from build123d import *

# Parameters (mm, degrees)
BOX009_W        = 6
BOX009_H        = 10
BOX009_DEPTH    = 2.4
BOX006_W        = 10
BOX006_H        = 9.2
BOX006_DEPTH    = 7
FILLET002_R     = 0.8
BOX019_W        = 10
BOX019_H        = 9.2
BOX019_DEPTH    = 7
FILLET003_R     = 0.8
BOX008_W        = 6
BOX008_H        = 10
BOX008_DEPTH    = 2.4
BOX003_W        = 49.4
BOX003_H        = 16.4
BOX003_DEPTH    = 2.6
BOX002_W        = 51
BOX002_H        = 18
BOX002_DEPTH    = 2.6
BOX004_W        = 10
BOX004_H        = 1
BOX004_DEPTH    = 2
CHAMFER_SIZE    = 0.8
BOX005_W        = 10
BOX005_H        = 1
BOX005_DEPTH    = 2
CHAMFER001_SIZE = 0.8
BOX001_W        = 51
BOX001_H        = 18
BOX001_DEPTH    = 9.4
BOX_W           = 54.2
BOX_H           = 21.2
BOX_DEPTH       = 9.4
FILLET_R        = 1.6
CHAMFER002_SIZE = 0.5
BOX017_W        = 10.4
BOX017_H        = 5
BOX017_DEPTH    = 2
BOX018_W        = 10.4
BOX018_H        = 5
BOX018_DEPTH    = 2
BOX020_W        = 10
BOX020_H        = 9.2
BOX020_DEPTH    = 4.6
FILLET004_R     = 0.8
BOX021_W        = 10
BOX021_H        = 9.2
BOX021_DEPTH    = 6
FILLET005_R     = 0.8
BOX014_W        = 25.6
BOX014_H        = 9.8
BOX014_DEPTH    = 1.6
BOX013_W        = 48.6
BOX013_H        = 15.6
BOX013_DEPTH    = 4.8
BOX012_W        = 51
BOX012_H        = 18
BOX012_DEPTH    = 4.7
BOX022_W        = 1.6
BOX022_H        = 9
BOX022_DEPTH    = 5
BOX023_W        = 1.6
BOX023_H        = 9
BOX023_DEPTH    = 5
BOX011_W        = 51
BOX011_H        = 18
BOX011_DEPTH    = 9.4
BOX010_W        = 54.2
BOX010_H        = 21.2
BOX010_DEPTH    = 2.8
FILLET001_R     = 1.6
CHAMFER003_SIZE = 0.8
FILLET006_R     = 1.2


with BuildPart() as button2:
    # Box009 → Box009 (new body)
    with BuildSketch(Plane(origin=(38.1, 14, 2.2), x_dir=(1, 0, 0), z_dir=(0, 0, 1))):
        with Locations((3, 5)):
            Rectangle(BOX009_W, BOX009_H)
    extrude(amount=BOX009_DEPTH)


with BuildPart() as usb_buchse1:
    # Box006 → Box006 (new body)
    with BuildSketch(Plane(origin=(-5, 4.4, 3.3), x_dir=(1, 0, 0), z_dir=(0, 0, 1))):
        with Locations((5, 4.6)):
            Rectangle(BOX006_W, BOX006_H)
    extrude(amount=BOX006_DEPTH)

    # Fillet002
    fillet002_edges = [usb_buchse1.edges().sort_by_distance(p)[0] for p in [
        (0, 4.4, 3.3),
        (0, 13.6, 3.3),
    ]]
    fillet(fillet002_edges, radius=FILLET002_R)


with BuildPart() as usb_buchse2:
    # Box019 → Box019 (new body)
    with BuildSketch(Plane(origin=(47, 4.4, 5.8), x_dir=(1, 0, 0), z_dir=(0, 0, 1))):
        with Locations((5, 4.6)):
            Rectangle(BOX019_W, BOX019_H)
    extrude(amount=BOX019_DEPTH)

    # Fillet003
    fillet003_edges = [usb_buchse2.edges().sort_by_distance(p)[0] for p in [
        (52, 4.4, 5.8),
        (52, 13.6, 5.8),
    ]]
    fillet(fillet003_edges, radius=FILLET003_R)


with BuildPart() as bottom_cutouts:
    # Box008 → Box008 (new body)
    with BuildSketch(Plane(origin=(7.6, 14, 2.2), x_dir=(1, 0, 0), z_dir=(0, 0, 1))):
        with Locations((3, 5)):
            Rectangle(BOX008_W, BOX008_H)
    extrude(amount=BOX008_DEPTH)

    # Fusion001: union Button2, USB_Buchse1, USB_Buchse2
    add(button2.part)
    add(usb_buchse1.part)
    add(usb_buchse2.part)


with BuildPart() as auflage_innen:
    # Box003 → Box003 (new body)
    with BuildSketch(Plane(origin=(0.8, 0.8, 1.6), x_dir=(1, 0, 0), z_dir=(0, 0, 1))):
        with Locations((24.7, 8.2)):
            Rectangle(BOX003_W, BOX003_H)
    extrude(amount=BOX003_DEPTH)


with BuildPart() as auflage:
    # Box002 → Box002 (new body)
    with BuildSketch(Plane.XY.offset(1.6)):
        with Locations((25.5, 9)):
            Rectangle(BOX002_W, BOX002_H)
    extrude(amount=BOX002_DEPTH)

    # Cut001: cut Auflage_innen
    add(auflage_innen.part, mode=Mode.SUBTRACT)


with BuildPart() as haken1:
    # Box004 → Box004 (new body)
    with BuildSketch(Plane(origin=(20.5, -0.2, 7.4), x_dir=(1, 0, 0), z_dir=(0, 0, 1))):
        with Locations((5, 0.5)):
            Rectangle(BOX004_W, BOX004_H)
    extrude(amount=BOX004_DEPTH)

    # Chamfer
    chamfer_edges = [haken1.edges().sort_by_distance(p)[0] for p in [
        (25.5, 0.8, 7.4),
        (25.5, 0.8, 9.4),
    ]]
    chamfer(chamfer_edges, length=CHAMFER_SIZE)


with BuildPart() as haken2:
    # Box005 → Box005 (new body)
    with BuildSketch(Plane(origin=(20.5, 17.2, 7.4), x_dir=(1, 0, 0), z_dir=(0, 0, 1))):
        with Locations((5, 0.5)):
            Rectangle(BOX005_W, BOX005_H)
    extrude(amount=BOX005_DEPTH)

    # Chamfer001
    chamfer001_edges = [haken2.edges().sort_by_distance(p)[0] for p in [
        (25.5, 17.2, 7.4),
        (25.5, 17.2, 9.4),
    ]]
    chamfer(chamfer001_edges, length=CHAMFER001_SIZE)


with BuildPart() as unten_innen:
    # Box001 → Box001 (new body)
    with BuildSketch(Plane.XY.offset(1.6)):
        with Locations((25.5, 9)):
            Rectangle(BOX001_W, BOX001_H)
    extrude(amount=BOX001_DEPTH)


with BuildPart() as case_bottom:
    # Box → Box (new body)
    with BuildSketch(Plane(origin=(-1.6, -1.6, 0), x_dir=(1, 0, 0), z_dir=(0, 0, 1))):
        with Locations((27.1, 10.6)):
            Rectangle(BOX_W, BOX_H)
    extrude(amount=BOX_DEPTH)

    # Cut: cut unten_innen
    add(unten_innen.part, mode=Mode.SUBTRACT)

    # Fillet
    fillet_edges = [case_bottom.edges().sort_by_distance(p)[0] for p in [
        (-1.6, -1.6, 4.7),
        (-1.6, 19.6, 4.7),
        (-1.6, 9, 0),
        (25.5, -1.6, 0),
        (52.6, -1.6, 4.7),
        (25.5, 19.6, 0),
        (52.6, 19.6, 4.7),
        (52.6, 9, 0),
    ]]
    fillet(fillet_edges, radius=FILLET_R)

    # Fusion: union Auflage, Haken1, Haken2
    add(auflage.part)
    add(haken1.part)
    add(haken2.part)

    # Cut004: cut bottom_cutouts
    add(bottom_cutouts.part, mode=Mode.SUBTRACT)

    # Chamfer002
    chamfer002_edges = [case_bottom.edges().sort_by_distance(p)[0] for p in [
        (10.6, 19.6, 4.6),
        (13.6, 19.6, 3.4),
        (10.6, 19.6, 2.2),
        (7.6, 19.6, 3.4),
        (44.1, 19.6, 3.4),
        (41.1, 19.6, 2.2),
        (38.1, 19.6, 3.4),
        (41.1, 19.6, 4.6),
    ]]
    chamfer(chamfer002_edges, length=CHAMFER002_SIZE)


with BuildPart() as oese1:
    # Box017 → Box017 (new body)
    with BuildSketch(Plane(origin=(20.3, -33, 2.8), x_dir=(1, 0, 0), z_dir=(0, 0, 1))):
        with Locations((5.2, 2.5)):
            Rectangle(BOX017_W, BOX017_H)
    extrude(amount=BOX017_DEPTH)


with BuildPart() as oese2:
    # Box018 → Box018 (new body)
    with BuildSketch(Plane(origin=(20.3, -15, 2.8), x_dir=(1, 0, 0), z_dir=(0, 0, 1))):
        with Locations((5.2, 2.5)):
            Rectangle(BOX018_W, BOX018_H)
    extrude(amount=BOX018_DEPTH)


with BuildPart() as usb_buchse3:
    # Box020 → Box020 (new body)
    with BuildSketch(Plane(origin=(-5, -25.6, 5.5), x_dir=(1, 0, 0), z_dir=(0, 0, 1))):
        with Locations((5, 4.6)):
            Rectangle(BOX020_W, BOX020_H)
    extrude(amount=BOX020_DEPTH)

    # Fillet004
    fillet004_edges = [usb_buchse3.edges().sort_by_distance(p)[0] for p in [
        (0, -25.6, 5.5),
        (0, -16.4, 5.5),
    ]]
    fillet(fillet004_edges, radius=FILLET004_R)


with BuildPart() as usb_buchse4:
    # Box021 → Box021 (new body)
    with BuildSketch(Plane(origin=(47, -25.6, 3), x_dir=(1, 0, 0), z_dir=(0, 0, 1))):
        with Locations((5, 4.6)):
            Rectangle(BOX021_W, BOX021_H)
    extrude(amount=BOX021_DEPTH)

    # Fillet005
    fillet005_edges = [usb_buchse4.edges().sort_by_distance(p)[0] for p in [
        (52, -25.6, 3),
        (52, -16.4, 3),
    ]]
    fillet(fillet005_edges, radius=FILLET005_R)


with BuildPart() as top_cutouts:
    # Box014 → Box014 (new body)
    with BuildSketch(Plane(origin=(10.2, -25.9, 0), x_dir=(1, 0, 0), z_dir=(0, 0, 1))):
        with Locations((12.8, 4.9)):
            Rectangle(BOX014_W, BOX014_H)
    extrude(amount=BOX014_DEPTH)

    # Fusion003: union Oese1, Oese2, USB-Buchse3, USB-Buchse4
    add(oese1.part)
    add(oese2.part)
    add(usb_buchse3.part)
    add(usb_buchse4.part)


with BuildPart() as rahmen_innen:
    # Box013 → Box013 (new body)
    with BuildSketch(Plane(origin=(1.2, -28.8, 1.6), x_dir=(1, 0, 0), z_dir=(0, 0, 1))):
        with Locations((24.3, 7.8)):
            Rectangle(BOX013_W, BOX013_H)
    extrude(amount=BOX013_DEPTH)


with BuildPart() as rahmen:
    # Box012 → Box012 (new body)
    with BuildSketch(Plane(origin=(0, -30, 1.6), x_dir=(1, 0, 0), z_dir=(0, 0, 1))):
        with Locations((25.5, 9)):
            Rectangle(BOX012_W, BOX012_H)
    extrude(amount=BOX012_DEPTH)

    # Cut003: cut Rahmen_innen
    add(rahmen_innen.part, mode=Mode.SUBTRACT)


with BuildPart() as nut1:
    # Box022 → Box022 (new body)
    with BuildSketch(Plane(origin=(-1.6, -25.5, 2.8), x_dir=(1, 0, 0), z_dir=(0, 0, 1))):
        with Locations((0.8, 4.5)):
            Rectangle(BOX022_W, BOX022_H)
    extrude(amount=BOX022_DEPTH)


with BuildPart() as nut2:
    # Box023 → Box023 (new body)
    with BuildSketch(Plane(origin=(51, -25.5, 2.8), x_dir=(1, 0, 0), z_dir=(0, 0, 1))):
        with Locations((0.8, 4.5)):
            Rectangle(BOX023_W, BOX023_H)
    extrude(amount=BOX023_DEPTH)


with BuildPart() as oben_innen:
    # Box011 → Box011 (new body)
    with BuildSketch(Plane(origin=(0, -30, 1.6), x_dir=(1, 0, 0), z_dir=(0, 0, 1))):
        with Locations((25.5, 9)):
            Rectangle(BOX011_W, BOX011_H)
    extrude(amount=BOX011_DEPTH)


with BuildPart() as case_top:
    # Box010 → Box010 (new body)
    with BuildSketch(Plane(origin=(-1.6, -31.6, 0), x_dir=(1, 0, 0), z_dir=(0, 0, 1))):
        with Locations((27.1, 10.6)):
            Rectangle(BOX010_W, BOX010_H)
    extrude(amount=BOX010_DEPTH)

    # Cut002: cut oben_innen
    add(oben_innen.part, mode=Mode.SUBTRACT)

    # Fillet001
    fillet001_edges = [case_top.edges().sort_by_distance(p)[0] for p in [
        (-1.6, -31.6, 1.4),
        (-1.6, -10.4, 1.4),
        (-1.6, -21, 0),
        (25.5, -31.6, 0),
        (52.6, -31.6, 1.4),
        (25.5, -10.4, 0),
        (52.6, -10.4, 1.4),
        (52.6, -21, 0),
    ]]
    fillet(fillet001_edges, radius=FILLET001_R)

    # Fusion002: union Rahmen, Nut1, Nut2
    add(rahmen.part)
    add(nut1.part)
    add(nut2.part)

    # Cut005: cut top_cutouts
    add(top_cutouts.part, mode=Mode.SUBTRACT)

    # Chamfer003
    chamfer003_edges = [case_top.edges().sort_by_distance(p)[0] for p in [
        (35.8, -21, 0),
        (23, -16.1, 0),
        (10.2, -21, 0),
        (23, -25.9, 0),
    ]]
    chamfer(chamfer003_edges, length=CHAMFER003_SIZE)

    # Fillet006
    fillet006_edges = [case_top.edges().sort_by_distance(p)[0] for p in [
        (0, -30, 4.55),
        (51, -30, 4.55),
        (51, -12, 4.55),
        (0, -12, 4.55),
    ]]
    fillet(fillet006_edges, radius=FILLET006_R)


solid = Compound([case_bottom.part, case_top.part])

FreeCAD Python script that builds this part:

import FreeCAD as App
import Part
import Sketcher
from FreeCAD import Vector


def edges_at(feature, points):
    """Names of the edges that pass closest to the given points."""
    edges = feature.Shape.Edges
    near = lambda p: min(range(len(edges)), key=lambda i: edges[i].distToShape(Part.Vertex(*p))[0])
    return sorted({f"Edge{near(p) + 1}" for p in points})

doc = App.newDocument("Part")
body = doc.addObject("PartDesign::Body", "Body")

# Sketch on XY plane
sketch1 = body.newObject("Sketcher::SketchObject", "Sketch")
sketch1.AttachmentSupport = (doc.getObject("XY_Plane"), [""])
sketch1.MapMode = "FlatFace"
sketch1.AttachmentOffset = App.Placement(Vector(0, 0, 2.2), App.Rotation())
sketch1.addGeometry([
    Part.LineSegment(Vector(38.1, 24, 0), Vector(38.1, 14, 0)),
    Part.LineSegment(Vector(38.1, 14, 0), Vector(44.1, 14, 0)),
    Part.LineSegment(Vector(44.1, 14, 0), Vector(44.1, 24, 0)),
    Part.LineSegment(Vector(44.1, 24, 0), Vector(38.1, 24, 0)),
], False)
sketch1.addConstraint([
    Sketcher.Constraint("Coincident", 0, 2, 1, 1),
    Sketcher.Constraint("Coincident", 1, 2, 2, 1),
    Sketcher.Constraint("Coincident", 2, 2, 3, 1),
    Sketcher.Constraint("Coincident", 3, 2, 0, 1),
    Sketcher.Constraint("Vertical", 0),
    Sketcher.Constraint("Horizontal", 1),
    Sketcher.Constraint("Vertical", 2),
    Sketcher.Constraint("Horizontal", 3),
    Sketcher.Constraint("DistanceX", 1, 1, 1, 2, 6.0),
    Sketcher.Constraint("DistanceY", 0, 2, 0, 1, 10.0),
    Sketcher.Constraint("DistanceY", -1, 1, 0, 2, 14.0),
    Sketcher.Constraint("DistanceX", -1, 1, 0, 2, 38.1),
])
pad1 = body.newObject("PartDesign::Pad", "Pad")
pad1.Profile = sketch1
pad1.Length = 2.4
body2 = doc.addObject("PartDesign::Body", "Body001")

# Sketch on XY plane
sketch2 = body2.newObject("Sketcher::SketchObject", "Sketch001")
sketch2.AttachmentSupport = (doc.getObject("XY_Plane001"), [""])
sketch2.MapMode = "FlatFace"
sketch2.AttachmentOffset = App.Placement(Vector(0, 0, 3.3), App.Rotation())
sketch2.addGeometry([
    Part.LineSegment(Vector(-5, 13.6, 0), Vector(-5, 4.4, 0)),
    Part.LineSegment(Vector(-5, 4.4, 0), Vector(5, 4.4, 0)),
    Part.LineSegment(Vector(5, 4.4, 0), Vector(5, 13.6, 0)),
    Part.LineSegment(Vector(5, 13.6, 0), Vector(-5, 13.6, 0)),
], False)
sketch2.addConstraint([
    Sketcher.Constraint("Coincident", 0, 2, 1, 1),
    Sketcher.Constraint("Coincident", 1, 2, 2, 1),
    Sketcher.Constraint("Coincident", 2, 2, 3, 1),
    Sketcher.Constraint("Coincident", 3, 2, 0, 1),
    Sketcher.Constraint("Vertical", 0),
    Sketcher.Constraint("Horizontal", 1),
    Sketcher.Constraint("Vertical", 2),
    Sketcher.Constraint("Horizontal", 3),
    Sketcher.Constraint("DistanceX", 1, 1, 1, 2, 10.0),
    Sketcher.Constraint("DistanceY", 0, 2, 0, 1, 9.2),
    Sketcher.Constraint("DistanceX", 0, 2, -1, 1, 5.0),
    Sketcher.Constraint("DistanceY", -1, 1, 0, 2, 4.4),
])
pad2 = body2.newObject("PartDesign::Pad", "Pad001")
pad2.Profile = sketch2
pad2.Length = 7
doc.recompute()

fillet = body2.newObject("PartDesign::Fillet", "Fillet")
fillet.Base = (pad2, edges_at(pad2, [(0, 4.4, 3.3), (0, 13.6, 3.3)]))
fillet.Radius = 0.8
body3 = doc.addObject("PartDesign::Body", "Body002")

# Sketch on XY plane
sketch3 = body3.newObject("Sketcher::SketchObject", "Sketch002")
sketch3.AttachmentSupport = (doc.getObject("XY_Plane002"), [""])
sketch3.MapMode = "FlatFace"
sketch3.AttachmentOffset = App.Placement(Vector(0, 0, 5.8), App.Rotation())
sketch3.addGeometry([
    Part.LineSegment(Vector(47, 13.6, 0), Vector(47, 4.4, 0)),
    Part.LineSegment(Vector(47, 4.4, 0), Vector(57, 4.4, 0)),
    Part.LineSegment(Vector(57, 4.4, 0), Vector(57, 13.6, 0)),
    Part.LineSegment(Vector(57, 13.6, 0), Vector(47, 13.6, 0)),
], False)
sketch3.addConstraint([
    Sketcher.Constraint("Coincident", 0, 2, 1, 1),
    Sketcher.Constraint("Coincident", 1, 2, 2, 1),
    Sketcher.Constraint("Coincident", 2, 2, 3, 1),
    Sketcher.Constraint("Coincident", 3, 2, 0, 1),
    Sketcher.Constraint("Vertical", 0),
    Sketcher.Constraint("Horizontal", 1),
    Sketcher.Constraint("Vertical", 2),
    Sketcher.Constraint("Horizontal", 3),
    Sketcher.Constraint("DistanceX", 1, 1, 1, 2, 10.0),
    Sketcher.Constraint("DistanceY", 0, 2, 0, 1, 9.2),
    Sketcher.Constraint("DistanceX", -1, 1, 0, 2, 47.0),
    Sketcher.Constraint("DistanceY", -1, 1, 0, 2, 4.4),
])
pad3 = body3.newObject("PartDesign::Pad", "Pad002")
pad3.Profile = sketch3
pad3.Length = 7
doc.recompute()

fillet2 = body3.newObject("PartDesign::Fillet", "Fillet001")
fillet2.Base = (pad3, edges_at(pad3, [(52, 4.4, 5.8), (52, 13.6, 5.8)]))
fillet2.Radius = 0.8
body4 = doc.addObject("PartDesign::Body", "Body003")
body4.AllowCompound = True

# Sketch on XY plane
sketch4 = body4.newObject("Sketcher::SketchObject", "Sketch003")
sketch4.AttachmentSupport = (doc.getObject("XY_Plane003"), [""])
sketch4.MapMode = "FlatFace"
sketch4.AttachmentOffset = App.Placement(Vector(0, 0, 2.2), App.Rotation())
sketch4.addGeometry([
    Part.LineSegment(Vector(7.6, 24, 0), Vector(7.6, 14, 0)),
    Part.LineSegment(Vector(7.6, 14, 0), Vector(13.6, 14, 0)),
    Part.LineSegment(Vector(13.6, 14, 0), Vector(13.6, 24, 0)),
    Part.LineSegment(Vector(13.6, 24, 0), Vector(7.6, 24, 0)),
], False)
sketch4.addConstraint([
    Sketcher.Constraint("Coincident", 0, 2, 1, 1),
    Sketcher.Constraint("Coincident", 1, 2, 2, 1),
    Sketcher.Constraint("Coincident", 2, 2, 3, 1),
    Sketcher.Constraint("Coincident", 3, 2, 0, 1),
    Sketcher.Constraint("Vertical", 0),
    Sketcher.Constraint("Horizontal", 1),
    Sketcher.Constraint("Vertical", 2),
    Sketcher.Constraint("Horizontal", 3),
    Sketcher.Constraint("DistanceX", 1, 1, 1, 2, 6.0),
    Sketcher.Constraint("DistanceY", 0, 2, 0, 1, 10.0),
    Sketcher.Constraint("DistanceY", -1, 1, 0, 2, 14.0),
    Sketcher.Constraint("DistanceX", -1, 1, 0, 2, 7.6),
])
pad4 = body4.newObject("PartDesign::Pad", "Pad003")
pad4.Profile = sketch4
pad4.Length = 2.4
doc.recompute()

boolean = body4.newObject("PartDesign::Boolean", "Boolean")
boolean.Type = "Fuse"
boolean.addObjects([body])
doc.recompute()

boolean2 = body4.newObject("PartDesign::Boolean", "Boolean001")
boolean2.Type = "Fuse"
boolean2.addObjects([body2])
doc.recompute()

boolean3 = body4.newObject("PartDesign::Boolean", "Boolean002")
boolean3.Type = "Fuse"
boolean3.addObjects([body3])
body5 = doc.addObject("PartDesign::Body", "Body004")

# Sketch on XY plane
sketch5 = body5.newObject("Sketcher::SketchObject", "Sketch004")
sketch5.AttachmentSupport = (doc.getObject("XY_Plane004"), [""])
sketch5.MapMode = "FlatFace"
sketch5.AttachmentOffset = App.Placement(Vector(0, 0, 1.6), App.Rotation())
sketch5.addGeometry([
    Part.LineSegment(Vector(0.8, 17.2, 0), Vector(0.8, 0.8, 0)),
    Part.LineSegment(Vector(0.8, 0.8, 0), Vector(50.2, 0.8, 0)),
    Part.LineSegment(Vector(50.2, 0.8, 0), Vector(50.2, 17.2, 0)),
    Part.LineSegment(Vector(50.2, 17.2, 0), Vector(0.8, 17.2, 0)),
], False)
sketch5.addConstraint([
    Sketcher.Constraint("Coincident", 0, 2, 1, 1),
    Sketcher.Constraint("Coincident", 1, 2, 2, 1),
    Sketcher.Constraint("Coincident", 2, 2, 3, 1),
    Sketcher.Constraint("Coincident", 3, 2, 0, 1),
    Sketcher.Constraint("Vertical", 0),
    Sketcher.Constraint("Horizontal", 1),
    Sketcher.Constraint("Vertical", 2),
    Sketcher.Constraint("Horizontal", 3),
    Sketcher.Constraint("DistanceX", 1, 1, 1, 2, 49.4),
    Sketcher.Constraint("DistanceY", 0, 2, 0, 1, 16.4),
    Sketcher.Constraint("DistanceX", -1, 1, 0, 2, 0.8),
    Sketcher.Constraint("DistanceY", -1, 1, 0, 2, 0.8),
])
pad5 = body5.newObject("PartDesign::Pad", "Pad004")
pad5.Profile = sketch5
pad5.Length = 2.6
body6 = doc.addObject("PartDesign::Body", "Body005")

# Sketch on XY plane
sketch6 = body6.newObject("Sketcher::SketchObject", "Sketch005")
sketch6.AttachmentSupport = (doc.getObject("XY_Plane005"), [""])
sketch6.MapMode = "FlatFace"
sketch6.AttachmentOffset = App.Placement(Vector(0, 0, 1.6), App.Rotation())
sketch6.addGeometry([
    Part.LineSegment(Vector(0, 18, 0), Vector(0, 0, 0)),
    Part.LineSegment(Vector(0, 0, 0), Vector(51, 0, 0)),
    Part.LineSegment(Vector(51, 0, 0), Vector(51, 18, 0)),
    Part.LineSegment(Vector(51, 18, 0), Vector(0, 18, 0)),
], False)
sketch6.addConstraint([
    Sketcher.Constraint("Coincident", 0, 2, 1, 1),
    Sketcher.Constraint("Coincident", 1, 2, 2, 1),
    Sketcher.Constraint("Coincident", 2, 2, 3, 1),
    Sketcher.Constraint("Coincident", 3, 2, 0, 1),
    Sketcher.Constraint("Vertical", 0),
    Sketcher.Constraint("Horizontal", 1),
    Sketcher.Constraint("Vertical", 2),
    Sketcher.Constraint("Horizontal", 3),
    Sketcher.Constraint("Coincident", 0, 2, -1, 1),
    Sketcher.Constraint("DistanceX", 1, 1, 1, 2, 51.0),
    Sketcher.Constraint("DistanceY", 0, 2, 0, 1, 18.0),
])
pad6 = body6.newObject("PartDesign::Pad", "Pad005")
pad6.Profile = sketch6
pad6.Length = 2.6
doc.recompute()

boolean4 = body6.newObject("PartDesign::Boolean", "Boolean003")
boolean4.Type = "Cut"
boolean4.addObjects([body5])
body7 = doc.addObject("PartDesign::Body", "Body006")

# Sketch on XY plane
sketch7 = body7.newObject("Sketcher::SketchObject", "Sketch006")
sketch7.AttachmentSupport = (doc.getObject("XY_Plane006"), [""])
sketch7.MapMode = "FlatFace"
sketch7.AttachmentOffset = App.Placement(Vector(0, 0, 7.4), App.Rotation())
sketch7.addGeometry([
    Part.LineSegment(Vector(20.5, 0.8, 0), Vector(20.5, -0.2, 0)),
    Part.LineSegment(Vector(20.5, -0.2, 0), Vector(30.5, -0.2, 0)),
    Part.LineSegment(Vector(30.5, -0.2, 0), Vector(30.5, 0.8, 0)),
    Part.LineSegment(Vector(30.5, 0.8, 0), Vector(20.5, 0.8, 0)),
], False)
sketch7.addConstraint([
    Sketcher.Constraint("Coincident", 0, 2, 1, 1),
    Sketcher.Constraint("Coincident", 1, 2, 2, 1),
    Sketcher.Constraint("Coincident", 2, 2, 3, 1),
    Sketcher.Constraint("Coincident", 3, 2, 0, 1),
    Sketcher.Constraint("Vertical", 0),
    Sketcher.Constraint("Horizontal", 1),
    Sketcher.Constraint("Vertical", 2),
    Sketcher.Constraint("Horizontal", 3),
    Sketcher.Constraint("DistanceX", 1, 1, 1, 2, 10.0),
    Sketcher.Constraint("DistanceY", 0, 2, 0, 1, 1.0),
    Sketcher.Constraint("DistanceX", -1, 1, 0, 2, 20.5),
    Sketcher.Constraint("DistanceY", 0, 2, -1, 1, 0.2),
])
pad7 = body7.newObject("PartDesign::Pad", "Pad006")
pad7.Profile = sketch7
pad7.Length = 2
doc.recompute()

chamfer = body7.newObject("PartDesign::Chamfer", "Chamfer")
chamfer.Base = (pad7, edges_at(pad7, [(25.5, 0.8, 7.4), (25.5, 0.8, 9.4)]))
chamfer.Size = 0.8
body8 = doc.addObject("PartDesign::Body", "Body007")

# Sketch on XY plane
sketch8 = body8.newObject("Sketcher::SketchObject", "Sketch007")
sketch8.AttachmentSupport = (doc.getObject("XY_Plane007"), [""])
sketch8.MapMode = "FlatFace"
sketch8.AttachmentOffset = App.Placement(Vector(0, 0, 7.4), App.Rotation())
sketch8.addGeometry([
    Part.LineSegment(Vector(20.5, 18.2, 0), Vector(20.5, 17.2, 0)),
    Part.LineSegment(Vector(20.5, 17.2, 0), Vector(30.5, 17.2, 0)),
    Part.LineSegment(Vector(30.5, 17.2, 0), Vector(30.5, 18.2, 0)),
    Part.LineSegment(Vector(30.5, 18.2, 0), Vector(20.5, 18.2, 0)),
], False)
sketch8.addConstraint([
    Sketcher.Constraint("Coincident", 0, 2, 1, 1),
    Sketcher.Constraint("Coincident", 1, 2, 2, 1),
    Sketcher.Constraint("Coincident", 2, 2, 3, 1),
    Sketcher.Constraint("Coincident", 3, 2, 0, 1),
    Sketcher.Constraint("Vertical", 0),
    Sketcher.Constraint("Horizontal", 1),
    Sketcher.Constraint("Vertical", 2),
    Sketcher.Constraint("Horizontal", 3),
    Sketcher.Constraint("DistanceX", 1, 1, 1, 2, 10.0),
    Sketcher.Constraint("DistanceY", 0, 2, 0, 1, 1.0),
    Sketcher.Constraint("DistanceX", -1, 1, 0, 2, 20.5),
    Sketcher.Constraint("DistanceY", -1, 1, 0, 2, 17.2),
])
pad8 = body8.newObject("PartDesign::Pad", "Pad007")
pad8.Profile = sketch8
pad8.Length = 2
doc.recompute()

chamfer2 = body8.newObject("PartDesign::Chamfer", "Chamfer001")
chamfer2.Base = (pad8, edges_at(pad8, [(25.5, 17.2, 7.4), (25.5, 17.2, 9.4)]))
chamfer2.Size = 0.8
body9 = doc.addObject("PartDesign::Body", "Body008")

# Sketch on XY plane
sketch9 = body9.newObject("Sketcher::SketchObject", "Sketch008")
sketch9.AttachmentSupport = (doc.getObject("XY_Plane008"), [""])
sketch9.MapMode = "FlatFace"
sketch9.AttachmentOffset = App.Placement(Vector(0, 0, 1.6), App.Rotation())
sketch9.addGeometry([
    Part.LineSegment(Vector(0, 18, 0), Vector(0, 0, 0)),
    Part.LineSegment(Vector(0, 0, 0), Vector(51, 0, 0)),
    Part.LineSegment(Vector(51, 0, 0), Vector(51, 18, 0)),
    Part.LineSegment(Vector(51, 18, 0), Vector(0, 18, 0)),
], False)
sketch9.addConstraint([
    Sketcher.Constraint("Coincident", 0, 2, 1, 1),
    Sketcher.Constraint("Coincident", 1, 2, 2, 1),
    Sketcher.Constraint("Coincident", 2, 2, 3, 1),
    Sketcher.Constraint("Coincident", 3, 2, 0, 1),
    Sketcher.Constraint("Vertical", 0),
    Sketcher.Constraint("Horizontal", 1),
    Sketcher.Constraint("Vertical", 2),
    Sketcher.Constraint("Horizontal", 3),
    Sketcher.Constraint("Coincident", 0, 2, -1, 1),
    Sketcher.Constraint("DistanceX", 1, 1, 1, 2, 51.0),
    Sketcher.Constraint("DistanceY", 0, 2, 0, 1, 18.0),
])
pad9 = body9.newObject("PartDesign::Pad", "Pad008")
pad9.Profile = sketch9
pad9.Length = 9.4
body10 = doc.addObject("PartDesign::Body", "Body009")

# Sketch on XY plane
sketch10 = body10.newObject("Sketcher::SketchObject", "Sketch009")
sketch10.AttachmentSupport = (doc.getObject("XY_Plane009"), [""])
sketch10.MapMode = "FlatFace"
sketch10.addGeometry([
    Part.LineSegment(Vector(-1.6, 19.6, 0), Vector(-1.6, -1.6, 0)),
    Part.LineSegment(Vector(-1.6, -1.6, 0), Vector(52.6, -1.6, 0)),
    Part.LineSegment(Vector(52.6, -1.6, 0), Vector(52.6, 19.6, 0)),
    Part.LineSegment(Vector(52.6, 19.6, 0), Vector(-1.6, 19.6, 0)),
], False)
sketch10.addConstraint([
    Sketcher.Constraint("Coincident", 0, 2, 1, 1),
    Sketcher.Constraint("Coincident", 1, 2, 2, 1),
    Sketcher.Constraint("Coincident", 2, 2, 3, 1),
    Sketcher.Constraint("Coincident", 3, 2, 0, 1),
    Sketcher.Constraint("Vertical", 0),
    Sketcher.Constraint("Horizontal", 1),
    Sketcher.Constraint("Vertical", 2),
    Sketcher.Constraint("Horizontal", 3),
    Sketcher.Constraint("DistanceX", 1, 1, 1, 2, 54.2),
    Sketcher.Constraint("DistanceY", 0, 2, 0, 1, 21.2),
    Sketcher.Constraint("DistanceX", 0, 2, -1, 1, 1.6),
    Sketcher.Constraint("DistanceY", 0, 2, -1, 1, 1.6),
])
pad10 = body10.newObject("PartDesign::Pad", "Pad009")
pad10.Profile = sketch10
pad10.Length = 9.4
doc.recompute()

boolean5 = body10.newObject("PartDesign::Boolean", "Boolean004")
boolean5.Type = "Cut"
boolean5.addObjects([body9])
doc.recompute()

fillet3 = body10.newObject("PartDesign::Fillet", "Fillet002")
fillet3.Base = (boolean5, edges_at(boolean5, [
    (-1.6, -1.6, 4.7),
    (-1.6, 19.6, 4.7),
    (-1.6, 9, 0),
    (25.5, -1.6, 0),
    (52.6, -1.6, 4.7),
    (25.5, 19.6, 0),
    (52.6, 19.6, 4.7),
    (52.6, 9, 0),
]))
fillet3.Radius = 1.6
doc.recompute()

boolean6 = body10.newObject("PartDesign::Boolean", "Boolean005")
boolean6.Type = "Fuse"
boolean6.addObjects([body6])
doc.recompute()

boolean7 = body10.newObject("PartDesign::Boolean", "Boolean006")
boolean7.Type = "Fuse"
boolean7.addObjects([body7])
doc.recompute()

boolean8 = body10.newObject("PartDesign::Boolean", "Boolean007")
boolean8.Type = "Fuse"
boolean8.addObjects([body8])
doc.recompute()

boolean9 = body10.newObject("PartDesign::Boolean", "Boolean008")
boolean9.Type = "Cut"
boolean9.addObjects([body4])
doc.recompute()

chamfer3 = body10.newObject("PartDesign::Chamfer", "Chamfer002")
chamfer3.Base = (boolean9, edges_at(boolean9, [
    (10.6, 19.6, 4.6),
    (13.6, 19.6, 3.4),
    (10.6, 19.6, 2.2),
    (7.6, 19.6, 3.4),
    (44.1, 19.6, 3.4),
    (41.1, 19.6, 2.2),
    (38.1, 19.6, 3.4),
    (41.1, 19.6, 4.6),
]))
chamfer3.Size = 0.5
body11 = doc.addObject("PartDesign::Body", "Body010")

# Sketch on XY plane
sketch11 = body11.newObject("Sketcher::SketchObject", "Sketch010")
sketch11.AttachmentSupport = (doc.getObject("XY_Plane010"), [""])
sketch11.MapMode = "FlatFace"
sketch11.AttachmentOffset = App.Placement(Vector(0, 0, 2.8), App.Rotation())
sketch11.addGeometry([
    Part.LineSegment(Vector(20.3, -28, 0), Vector(20.3, -33, 0)),
    Part.LineSegment(Vector(20.3, -33, 0), Vector(30.7, -33, 0)),
    Part.LineSegment(Vector(30.7, -33, 0), Vector(30.7, -28, 0)),
    Part.LineSegment(Vector(30.7, -28, 0), Vector(20.3, -28, 0)),
], False)
sketch11.addConstraint([
    Sketcher.Constraint("Coincident", 0, 2, 1, 1),
    Sketcher.Constraint("Coincident", 1, 2, 2, 1),
    Sketcher.Constraint("Coincident", 2, 2, 3, 1),
    Sketcher.Constraint("Coincident", 3, 2, 0, 1),
    Sketcher.Constraint("Vertical", 0),
    Sketcher.Constraint("Horizontal", 1),
    Sketcher.Constraint("Vertical", 2),
    Sketcher.Constraint("Horizontal", 3),
    Sketcher.Constraint("DistanceY", 0, 2, 0, 1, 5.0),
    Sketcher.Constraint("DistanceX", 1, 1, 1, 2, 10.4),
    Sketcher.Constraint("DistanceY", 0, 2, -1, 1, 33.0),
    Sketcher.Constraint("DistanceX", -1, 1, 0, 2, 20.3),
])
pad11 = body11.newObject("PartDesign::Pad", "Pad010")
pad11.Profile = sketch11
pad11.Length = 2
body12 = doc.addObject("PartDesign::Body", "Body011")

# Sketch on XY plane
sketch12 = body12.newObject("Sketcher::SketchObject", "Sketch011")
sketch12.AttachmentSupport = (doc.getObject("XY_Plane011"), [""])
sketch12.MapMode = "FlatFace"
sketch12.AttachmentOffset = App.Placement(Vector(0, 0, 2.8), App.Rotation())
sketch12.addGeometry([
    Part.LineSegment(Vector(20.3, -10, 0), Vector(20.3, -15, 0)),
    Part.LineSegment(Vector(20.3, -15, 0), Vector(30.7, -15, 0)),
    Part.LineSegment(Vector(30.7, -15, 0), Vector(30.7, -10, 0)),
    Part.LineSegment(Vector(30.7, -10, 0), Vector(20.3, -10, 0)),
], False)
sketch12.addConstraint([
    Sketcher.Constraint("Coincident", 0, 2, 1, 1),
    Sketcher.Constraint("Coincident", 1, 2, 2, 1),
    Sketcher.Constraint("Coincident", 2, 2, 3, 1),
    Sketcher.Constraint("Coincident", 3, 2, 0, 1),
    Sketcher.Constraint("Vertical", 0),
    Sketcher.Constraint("Horizontal", 1),
    Sketcher.Constraint("Vertical", 2),
    Sketcher.Constraint("Horizontal", 3),
    Sketcher.Constraint("DistanceY", 0, 2, 0, 1, 5.0),
    Sketcher.Constraint("DistanceX", 1, 1, 1, 2, 10.4),
    Sketcher.Constraint("DistanceY", 0, 2, -1, 1, 15.0),
    Sketcher.Constraint("DistanceX", -1, 1, 0, 2, 20.3),
])
pad12 = body12.newObject("PartDesign::Pad", "Pad011")
pad12.Profile = sketch12
pad12.Length = 2
body13 = doc.addObject("PartDesign::Body", "Body012")

# Sketch on XY plane
sketch13 = body13.newObject("Sketcher::SketchObject", "Sketch012")
sketch13.AttachmentSupport = (doc.getObject("XY_Plane012"), [""])
sketch13.MapMode = "FlatFace"
sketch13.AttachmentOffset = App.Placement(Vector(0, 0, 5.5), App.Rotation())
sketch13.addGeometry([
    Part.LineSegment(Vector(-5, -16.4, 0), Vector(-5, -25.6, 0)),
    Part.LineSegment(Vector(-5, -25.6, 0), Vector(5, -25.6, 0)),
    Part.LineSegment(Vector(5, -25.6, 0), Vector(5, -16.4, 0)),
    Part.LineSegment(Vector(5, -16.4, 0), Vector(-5, -16.4, 0)),
], False)
sketch13.addConstraint([
    Sketcher.Constraint("Coincident", 0, 2, 1, 1),
    Sketcher.Constraint("Coincident", 1, 2, 2, 1),
    Sketcher.Constraint("Coincident", 2, 2, 3, 1),
    Sketcher.Constraint("Coincident", 3, 2, 0, 1),
    Sketcher.Constraint("Vertical", 0),
    Sketcher.Constraint("Horizontal", 1),
    Sketcher.Constraint("Vertical", 2),
    Sketcher.Constraint("Horizontal", 3),
    Sketcher.Constraint("DistanceX", 1, 1, 1, 2, 10.0),
    Sketcher.Constraint("DistanceY", 0, 2, 0, 1, 9.2),
    Sketcher.Constraint("DistanceX", 0, 2, -1, 1, 5.0),
    Sketcher.Constraint("DistanceY", 0, 2, -1, 1, 25.6),
])
pad13 = body13.newObject("PartDesign::Pad", "Pad012")
pad13.Profile = sketch13
pad13.Length = 4.6
doc.recompute()

fillet4 = body13.newObject("PartDesign::Fillet", "Fillet003")
fillet4.Base = (pad13, edges_at(pad13, [(0, -25.6, 5.5), (0, -16.4, 5.5)]))
fillet4.Radius = 0.8
body14 = doc.addObject("PartDesign::Body", "Body013")

# Sketch on XY plane
sketch14 = body14.newObject("Sketcher::SketchObject", "Sketch013")
sketch14.AttachmentSupport = (doc.getObject("XY_Plane013"), [""])
sketch14.MapMode = "FlatFace"
sketch14.AttachmentOffset = App.Placement(Vector(0, 0, 3), App.Rotation())
sketch14.addGeometry([
    Part.LineSegment(Vector(47, -16.4, 0), Vector(47, -25.6, 0)),
    Part.LineSegment(Vector(47, -25.6, 0), Vector(57, -25.6, 0)),
    Part.LineSegment(Vector(57, -25.6, 0), Vector(57, -16.4, 0)),
    Part.LineSegment(Vector(57, -16.4, 0), Vector(47, -16.4, 0)),
], False)
sketch14.addConstraint([
    Sketcher.Constraint("Coincident", 0, 2, 1, 1),
    Sketcher.Constraint("Coincident", 1, 2, 2, 1),
    Sketcher.Constraint("Coincident", 2, 2, 3, 1),
    Sketcher.Constraint("Coincident", 3, 2, 0, 1),
    Sketcher.Constraint("Vertical", 0),
    Sketcher.Constraint("Horizontal", 1),
    Sketcher.Constraint("Vertical", 2),
    Sketcher.Constraint("Horizontal", 3),
    Sketcher.Constraint("DistanceX", 1, 1, 1, 2, 10.0),
    Sketcher.Constraint("DistanceY", 0, 2, 0, 1, 9.2),
    Sketcher.Constraint("DistanceX", -1, 1, 0, 2, 47.0),
    Sketcher.Constraint("DistanceY", 0, 2, -1, 1, 25.6),
])
pad14 = body14.newObject("PartDesign::Pad", "Pad013")
pad14.Profile = sketch14
pad14.Length = 6
doc.recompute()

fillet5 = body14.newObject("PartDesign::Fillet", "Fillet004")
fillet5.Base = (pad14, edges_at(pad14, [(52, -25.6, 3), (52, -16.4, 3)]))
fillet5.Radius = 0.8
body15 = doc.addObject("PartDesign::Body", "Body014")
body15.AllowCompound = True

# Sketch on XY plane
sketch15 = body15.newObject("Sketcher::SketchObject", "Sketch014")
sketch15.AttachmentSupport = (doc.getObject("XY_Plane014"), [""])
sketch15.MapMode = "FlatFace"
sketch15.addGeometry([
    Part.LineSegment(Vector(10.2, -16.1, 0), Vector(10.2, -25.9, 0)),
    Part.LineSegment(Vector(10.2, -25.9, 0), Vector(35.8, -25.9, 0)),
    Part.LineSegment(Vector(35.8, -25.9, 0), Vector(35.8, -16.1, 0)),
    Part.LineSegment(Vector(35.8, -16.1, 0), Vector(10.2, -16.1, 0)),
], False)
sketch15.addConstraint([
    Sketcher.Constraint("Coincident", 0, 2, 1, 1),
    Sketcher.Constraint("Coincident", 1, 2, 2, 1),
    Sketcher.Constraint("Coincident", 2, 2, 3, 1),
    Sketcher.Constraint("Coincident", 3, 2, 0, 1),
    Sketcher.Constraint("Vertical", 0),
    Sketcher.Constraint("Horizontal", 1),
    Sketcher.Constraint("Vertical", 2),
    Sketcher.Constraint("Horizontal", 3),
    Sketcher.Constraint("DistanceX", 1, 1, 1, 2, 25.6),
    Sketcher.Constraint("DistanceY", 0, 2, 0, 1, 9.8),
    Sketcher.Constraint("DistanceX", -1, 1, 0, 2, 10.2),
    Sketcher.Constraint("DistanceY", 0, 2, -1, 1, 25.9),
])
pad15 = body15.newObject("PartDesign::Pad", "Pad014")
pad15.Profile = sketch15
pad15.Length = 1.6
doc.recompute()

boolean10 = body15.newObject("PartDesign::Boolean", "Boolean009")
boolean10.Type = "Fuse"
boolean10.addObjects([body11])
doc.recompute()

boolean11 = body15.newObject("PartDesign::Boolean", "Boolean010")
boolean11.Type = "Fuse"
boolean11.addObjects([body12])
doc.recompute()

boolean12 = body15.newObject("PartDesign::Boolean", "Boolean011")
boolean12.Type = "Fuse"
boolean12.addObjects([body13])
doc.recompute()

boolean13 = body15.newObject("PartDesign::Boolean", "Boolean012")
boolean13.Type = "Fuse"
boolean13.addObjects([body14])
body16 = doc.addObject("PartDesign::Body", "Body015")

# Sketch on XY plane
sketch16 = body16.newObject("Sketcher::SketchObject", "Sketch015")
sketch16.AttachmentSupport = (doc.getObject("XY_Plane015"), [""])
sketch16.MapMode = "FlatFace"
sketch16.AttachmentOffset = App.Placement(Vector(0, 0, 1.6), App.Rotation())
sketch16.addGeometry([
    Part.LineSegment(Vector(1.2, -13.2, 0), Vector(1.2, -28.8, 0)),
    Part.LineSegment(Vector(1.2, -28.8, 0), Vector(49.8, -28.8, 0)),
    Part.LineSegment(Vector(49.8, -28.8, 0), Vector(49.8, -13.2, 0)),
    Part.LineSegment(Vector(49.8, -13.2, 0), Vector(1.2, -13.2, 0)),
], False)
sketch16.addConstraint([
    Sketcher.Constraint("Coincident", 0, 2, 1, 1),
    Sketcher.Constraint("Coincident", 1, 2, 2, 1),
    Sketcher.Constraint("Coincident", 2, 2, 3, 1),
    Sketcher.Constraint("Coincident", 3, 2, 0, 1),
    Sketcher.Constraint("Vertical", 0),
    Sketcher.Constraint("Horizontal", 1),
    Sketcher.Constraint("Vertical", 2),
    Sketcher.Constraint("Horizontal", 3),
    Sketcher.Constraint("DistanceX", 1, 1, 1, 2, 48.6),
    Sketcher.Constraint("DistanceY", 0, 2, 0, 1, 15.6),
    Sketcher.Constraint("DistanceX", -1, 1, 0, 2, 1.2),
    Sketcher.Constraint("DistanceY", 0, 2, -1, 1, 28.8),
])
pad16 = body16.newObject("PartDesign::Pad", "Pad015")
pad16.Profile = sketch16
pad16.Length = 4.8
body17 = doc.addObject("PartDesign::Body", "Body016")

# Sketch on XY plane
sketch17 = body17.newObject("Sketcher::SketchObject", "Sketch016")
sketch17.AttachmentSupport = (doc.getObject("XY_Plane016"), [""])
sketch17.MapMode = "FlatFace"
sketch17.AttachmentOffset = App.Placement(Vector(0, 0, 1.6), App.Rotation())
sketch17.addGeometry([
    Part.LineSegment(Vector(0, -12, 0), Vector(0, -30, 0)),
    Part.LineSegment(Vector(0, -30, 0), Vector(51, -30, 0)),
    Part.LineSegment(Vector(51, -30, 0), Vector(51, -12, 0)),
    Part.LineSegment(Vector(51, -12, 0), Vector(0, -12, 0)),
], False)
sketch17.addConstraint([
    Sketcher.Constraint("Coincident", 0, 2, 1, 1),
    Sketcher.Constraint("Coincident", 1, 2, 2, 1),
    Sketcher.Constraint("Coincident", 2, 2, 3, 1),
    Sketcher.Constraint("Coincident", 3, 2, 0, 1),
    Sketcher.Constraint("Vertical", 0),
    Sketcher.Constraint("Horizontal", 1),
    Sketcher.Constraint("Vertical", 2),
    Sketcher.Constraint("Horizontal", 3),
    Sketcher.Constraint("PointOnObject", 0, 2, -2),
    Sketcher.Constraint("DistanceX", 1, 1, 1, 2, 51.0),
    Sketcher.Constraint("DistanceY", 0, 2, 0, 1, 18.0),
    Sketcher.Constraint("DistanceY", 0, 2, -1, 1, 30.0),
])
pad17 = body17.newObject("PartDesign::Pad", "Pad016")
pad17.Profile = sketch17
pad17.Length = 4.7
doc.recompute()

boolean14 = body17.newObject("PartDesign::Boolean", "Boolean013")
boolean14.Type = "Cut"
boolean14.addObjects([body16])
body18 = doc.addObject("PartDesign::Body", "Body017")

# Sketch on XY plane
sketch18 = body18.newObject("Sketcher::SketchObject", "Sketch017")
sketch18.AttachmentSupport = (doc.getObject("XY_Plane017"), [""])
sketch18.MapMode = "FlatFace"
sketch18.AttachmentOffset = App.Placement(Vector(0, 0, 2.8), App.Rotation())
sketch18.addGeometry([
    Part.LineSegment(Vector(-1.6, -16.5, 0), Vector(-1.6, -25.5, 0)),
    Part.LineSegment(Vector(-1.6, -25.5, 0), Vector(0, -25.5, 0)),
    Part.LineSegment(Vector(0, -25.5, 0), Vector(0, -16.5, 0)),
    Part.LineSegment(Vector(0, -16.5, 0), Vector(-1.6, -16.5, 0)),
], False)
sketch18.addConstraint([
    Sketcher.Constraint("Coincident", 0, 2, 1, 1),
    Sketcher.Constraint("Coincident", 1, 2, 2, 1),
    Sketcher.Constraint("Coincident", 2, 2, 3, 1),
    Sketcher.Constraint("Coincident", 3, 2, 0, 1),
    Sketcher.Constraint("Vertical", 0),
    Sketcher.Constraint("Horizontal", 1),
    Sketcher.Constraint("Vertical", 2),
    Sketcher.Constraint("Horizontal", 3),
    Sketcher.Constraint("PointOnObject", 1, 2, -2),
    Sketcher.Constraint("DistanceY", 0, 2, 0, 1, 9.0),
    Sketcher.Constraint("DistanceX", 1, 1, 1, 2, 1.6),
    Sketcher.Constraint("DistanceY", 0, 2, -1, 1, 25.5),
])
pad18 = body18.newObject("PartDesign::Pad", "Pad017")
pad18.Profile = sketch18
pad18.Length = 5
body19 = doc.addObject("PartDesign::Body", "Body018")

# Sketch on XY plane
sketch19 = body19.newObject("Sketcher::SketchObject", "Sketch018")
sketch19.AttachmentSupport = (doc.getObject("XY_Plane018"), [""])
sketch19.MapMode = "FlatFace"
sketch19.AttachmentOffset = App.Placement(Vector(0, 0, 2.8), App.Rotation())
sketch19.addGeometry([
    Part.LineSegment(Vector(51, -16.5, 0), Vector(51, -25.5, 0)),
    Part.LineSegment(Vector(51, -25.5, 0), Vector(52.6, -25.5, 0)),
    Part.LineSegment(Vector(52.6, -25.5, 0), Vector(52.6, -16.5, 0)),
    Part.LineSegment(Vector(52.6, -16.5, 0), Vector(51, -16.5, 0)),
], False)
sketch19.addConstraint([
    Sketcher.Constraint("Coincident", 0, 2, 1, 1),
    Sketcher.Constraint("Coincident", 1, 2, 2, 1),
    Sketcher.Constraint("Coincident", 2, 2, 3, 1),
    Sketcher.Constraint("Coincident", 3, 2, 0, 1),
    Sketcher.Constraint("Vertical", 0),
    Sketcher.Constraint("Horizontal", 1),
    Sketcher.Constraint("Vertical", 2),
    Sketcher.Constraint("Horizontal", 3),
    Sketcher.Constraint("DistanceY", 0, 2, 0, 1, 9.0),
    Sketcher.Constraint("DistanceX", 1, 1, 1, 2, 1.6),
    Sketcher.Constraint("DistanceX", -1, 1, 0, 2, 51.0),
    Sketcher.Constraint("DistanceY", 0, 2, -1, 1, 25.5),
])
pad19 = body19.newObject("PartDesign::Pad", "Pad018")
pad19.Profile = sketch19
pad19.Length = 5
body20 = doc.addObject("PartDesign::Body", "Body019")

# Sketch on XY plane
sketch20 = body20.newObject("Sketcher::SketchObject", "Sketch019")
sketch20.AttachmentSupport = (doc.getObject("XY_Plane019"), [""])
sketch20.MapMode = "FlatFace"
sketch20.AttachmentOffset = App.Placement(Vector(0, 0, 1.6), App.Rotation())
sketch20.addGeometry([
    Part.LineSegment(Vector(0, -12, 0), Vector(0, -30, 0)),
    Part.LineSegment(Vector(0, -30, 0), Vector(51, -30, 0)),
    Part.LineSegment(Vector(51, -30, 0), Vector(51, -12, 0)),
    Part.LineSegment(Vector(51, -12, 0), Vector(0, -12, 0)),
], False)
sketch20.addConstraint([
    Sketcher.Constraint("Coincident", 0, 2, 1, 1),
    Sketcher.Constraint("Coincident", 1, 2, 2, 1),
    Sketcher.Constraint("Coincident", 2, 2, 3, 1),
    Sketcher.Constraint("Coincident", 3, 2, 0, 1),
    Sketcher.Constraint("Vertical", 0),
    Sketcher.Constraint("Horizontal", 1),
    Sketcher.Constraint("Vertical", 2),
    Sketcher.Constraint("Horizontal", 3),
    Sketcher.Constraint("PointOnObject", 0, 2, -2),
    Sketcher.Constraint("DistanceX", 1, 1, 1, 2, 51.0),
    Sketcher.Constraint("DistanceY", 0, 2, 0, 1, 18.0),
    Sketcher.Constraint("DistanceY", 0, 2, -1, 1, 30.0),
])
pad20 = body20.newObject("PartDesign::Pad", "Pad019")
pad20.Profile = sketch20
pad20.Length = 9.4
body21 = doc.addObject("PartDesign::Body", "Body020")

# Sketch on XY plane
sketch21 = body21.newObject("Sketcher::SketchObject", "Sketch020")
sketch21.AttachmentSupport = (doc.getObject("XY_Plane020"), [""])
sketch21.MapMode = "FlatFace"
sketch21.addGeometry([
    Part.LineSegment(Vector(-1.6, -10.4, 0), Vector(-1.6, -31.6, 0)),
    Part.LineSegment(Vector(-1.6, -31.6, 0), Vector(52.6, -31.6, 0)),
    Part.LineSegment(Vector(52.6, -31.6, 0), Vector(52.6, -10.4, 0)),
    Part.LineSegment(Vector(52.6, -10.4, 0), Vector(-1.6, -10.4, 0)),
], False)
sketch21.addConstraint([
    Sketcher.Constraint("Coincident", 0, 2, 1, 1),
    Sketcher.Constraint("Coincident", 1, 2, 2, 1),
    Sketcher.Constraint("Coincident", 2, 2, 3, 1),
    Sketcher.Constraint("Coincident", 3, 2, 0, 1),
    Sketcher.Constraint("Vertical", 0),
    Sketcher.Constraint("Horizontal", 1),
    Sketcher.Constraint("Vertical", 2),
    Sketcher.Constraint("Horizontal", 3),
    Sketcher.Constraint("DistanceX", 1, 1, 1, 2, 54.2),
    Sketcher.Constraint("DistanceY", 0, 2, 0, 1, 21.2),
    Sketcher.Constraint("DistanceX", 0, 2, -1, 1, 1.6),
    Sketcher.Constraint("DistanceY", 0, 2, -1, 1, 31.6),
])
pad21 = body21.newObject("PartDesign::Pad", "Pad020")
pad21.Profile = sketch21
pad21.Length = 2.8
doc.recompute()

boolean15 = body21.newObject("PartDesign::Boolean", "Boolean014")
boolean15.Type = "Cut"
boolean15.addObjects([body20])
doc.recompute()

fillet6 = body21.newObject("PartDesign::Fillet", "Fillet005")
fillet6.Base = (boolean15, edges_at(boolean15, [
    (-1.6, -31.6, 1.4),
    (-1.6, -10.4, 1.4),
    (-1.6, -21, 0),
    (25.5, -31.6, 0),
    (52.6, -31.6, 1.4),
    (25.5, -10.4, 0),
    (52.6, -10.4, 1.4),
    (52.6, -21, 0),
]))
fillet6.Radius = 1.6
doc.recompute()

boolean16 = body21.newObject("PartDesign::Boolean", "Boolean015")
boolean16.Type = "Fuse"
boolean16.addObjects([body17])
doc.recompute()

boolean17 = body21.newObject("PartDesign::Boolean", "Boolean016")
boolean17.Type = "Fuse"
boolean17.addObjects([body18])
doc.recompute()

boolean18 = body21.newObject("PartDesign::Boolean", "Boolean017")
boolean18.Type = "Fuse"
boolean18.addObjects([body19])
doc.recompute()

boolean19 = body21.newObject("PartDesign::Boolean", "Boolean018")
boolean19.Type = "Cut"
boolean19.addObjects([body15])
doc.recompute()

chamfer4 = body21.newObject("PartDesign::Chamfer", "Chamfer003")
chamfer4.Base = (boolean19, edges_at(boolean19, [
    (35.8, -21, 0),
    (23, -16.1, 0),
    (10.2, -21, 0),
    (23, -25.9, 0),
]))
chamfer4.Size = 0.8
doc.recompute()

fillet7 = body21.newObject("PartDesign::Fillet", "Fillet006")
fillet7.Base = (chamfer4, edges_at(chamfer4, [
    (0, -30, 4.55),
    (51, -30, 4.55),
    (51, -12, 4.55),
    (0, -12, 4.55),
]))
fillet7.Radius = 1.2

doc.recompute()
